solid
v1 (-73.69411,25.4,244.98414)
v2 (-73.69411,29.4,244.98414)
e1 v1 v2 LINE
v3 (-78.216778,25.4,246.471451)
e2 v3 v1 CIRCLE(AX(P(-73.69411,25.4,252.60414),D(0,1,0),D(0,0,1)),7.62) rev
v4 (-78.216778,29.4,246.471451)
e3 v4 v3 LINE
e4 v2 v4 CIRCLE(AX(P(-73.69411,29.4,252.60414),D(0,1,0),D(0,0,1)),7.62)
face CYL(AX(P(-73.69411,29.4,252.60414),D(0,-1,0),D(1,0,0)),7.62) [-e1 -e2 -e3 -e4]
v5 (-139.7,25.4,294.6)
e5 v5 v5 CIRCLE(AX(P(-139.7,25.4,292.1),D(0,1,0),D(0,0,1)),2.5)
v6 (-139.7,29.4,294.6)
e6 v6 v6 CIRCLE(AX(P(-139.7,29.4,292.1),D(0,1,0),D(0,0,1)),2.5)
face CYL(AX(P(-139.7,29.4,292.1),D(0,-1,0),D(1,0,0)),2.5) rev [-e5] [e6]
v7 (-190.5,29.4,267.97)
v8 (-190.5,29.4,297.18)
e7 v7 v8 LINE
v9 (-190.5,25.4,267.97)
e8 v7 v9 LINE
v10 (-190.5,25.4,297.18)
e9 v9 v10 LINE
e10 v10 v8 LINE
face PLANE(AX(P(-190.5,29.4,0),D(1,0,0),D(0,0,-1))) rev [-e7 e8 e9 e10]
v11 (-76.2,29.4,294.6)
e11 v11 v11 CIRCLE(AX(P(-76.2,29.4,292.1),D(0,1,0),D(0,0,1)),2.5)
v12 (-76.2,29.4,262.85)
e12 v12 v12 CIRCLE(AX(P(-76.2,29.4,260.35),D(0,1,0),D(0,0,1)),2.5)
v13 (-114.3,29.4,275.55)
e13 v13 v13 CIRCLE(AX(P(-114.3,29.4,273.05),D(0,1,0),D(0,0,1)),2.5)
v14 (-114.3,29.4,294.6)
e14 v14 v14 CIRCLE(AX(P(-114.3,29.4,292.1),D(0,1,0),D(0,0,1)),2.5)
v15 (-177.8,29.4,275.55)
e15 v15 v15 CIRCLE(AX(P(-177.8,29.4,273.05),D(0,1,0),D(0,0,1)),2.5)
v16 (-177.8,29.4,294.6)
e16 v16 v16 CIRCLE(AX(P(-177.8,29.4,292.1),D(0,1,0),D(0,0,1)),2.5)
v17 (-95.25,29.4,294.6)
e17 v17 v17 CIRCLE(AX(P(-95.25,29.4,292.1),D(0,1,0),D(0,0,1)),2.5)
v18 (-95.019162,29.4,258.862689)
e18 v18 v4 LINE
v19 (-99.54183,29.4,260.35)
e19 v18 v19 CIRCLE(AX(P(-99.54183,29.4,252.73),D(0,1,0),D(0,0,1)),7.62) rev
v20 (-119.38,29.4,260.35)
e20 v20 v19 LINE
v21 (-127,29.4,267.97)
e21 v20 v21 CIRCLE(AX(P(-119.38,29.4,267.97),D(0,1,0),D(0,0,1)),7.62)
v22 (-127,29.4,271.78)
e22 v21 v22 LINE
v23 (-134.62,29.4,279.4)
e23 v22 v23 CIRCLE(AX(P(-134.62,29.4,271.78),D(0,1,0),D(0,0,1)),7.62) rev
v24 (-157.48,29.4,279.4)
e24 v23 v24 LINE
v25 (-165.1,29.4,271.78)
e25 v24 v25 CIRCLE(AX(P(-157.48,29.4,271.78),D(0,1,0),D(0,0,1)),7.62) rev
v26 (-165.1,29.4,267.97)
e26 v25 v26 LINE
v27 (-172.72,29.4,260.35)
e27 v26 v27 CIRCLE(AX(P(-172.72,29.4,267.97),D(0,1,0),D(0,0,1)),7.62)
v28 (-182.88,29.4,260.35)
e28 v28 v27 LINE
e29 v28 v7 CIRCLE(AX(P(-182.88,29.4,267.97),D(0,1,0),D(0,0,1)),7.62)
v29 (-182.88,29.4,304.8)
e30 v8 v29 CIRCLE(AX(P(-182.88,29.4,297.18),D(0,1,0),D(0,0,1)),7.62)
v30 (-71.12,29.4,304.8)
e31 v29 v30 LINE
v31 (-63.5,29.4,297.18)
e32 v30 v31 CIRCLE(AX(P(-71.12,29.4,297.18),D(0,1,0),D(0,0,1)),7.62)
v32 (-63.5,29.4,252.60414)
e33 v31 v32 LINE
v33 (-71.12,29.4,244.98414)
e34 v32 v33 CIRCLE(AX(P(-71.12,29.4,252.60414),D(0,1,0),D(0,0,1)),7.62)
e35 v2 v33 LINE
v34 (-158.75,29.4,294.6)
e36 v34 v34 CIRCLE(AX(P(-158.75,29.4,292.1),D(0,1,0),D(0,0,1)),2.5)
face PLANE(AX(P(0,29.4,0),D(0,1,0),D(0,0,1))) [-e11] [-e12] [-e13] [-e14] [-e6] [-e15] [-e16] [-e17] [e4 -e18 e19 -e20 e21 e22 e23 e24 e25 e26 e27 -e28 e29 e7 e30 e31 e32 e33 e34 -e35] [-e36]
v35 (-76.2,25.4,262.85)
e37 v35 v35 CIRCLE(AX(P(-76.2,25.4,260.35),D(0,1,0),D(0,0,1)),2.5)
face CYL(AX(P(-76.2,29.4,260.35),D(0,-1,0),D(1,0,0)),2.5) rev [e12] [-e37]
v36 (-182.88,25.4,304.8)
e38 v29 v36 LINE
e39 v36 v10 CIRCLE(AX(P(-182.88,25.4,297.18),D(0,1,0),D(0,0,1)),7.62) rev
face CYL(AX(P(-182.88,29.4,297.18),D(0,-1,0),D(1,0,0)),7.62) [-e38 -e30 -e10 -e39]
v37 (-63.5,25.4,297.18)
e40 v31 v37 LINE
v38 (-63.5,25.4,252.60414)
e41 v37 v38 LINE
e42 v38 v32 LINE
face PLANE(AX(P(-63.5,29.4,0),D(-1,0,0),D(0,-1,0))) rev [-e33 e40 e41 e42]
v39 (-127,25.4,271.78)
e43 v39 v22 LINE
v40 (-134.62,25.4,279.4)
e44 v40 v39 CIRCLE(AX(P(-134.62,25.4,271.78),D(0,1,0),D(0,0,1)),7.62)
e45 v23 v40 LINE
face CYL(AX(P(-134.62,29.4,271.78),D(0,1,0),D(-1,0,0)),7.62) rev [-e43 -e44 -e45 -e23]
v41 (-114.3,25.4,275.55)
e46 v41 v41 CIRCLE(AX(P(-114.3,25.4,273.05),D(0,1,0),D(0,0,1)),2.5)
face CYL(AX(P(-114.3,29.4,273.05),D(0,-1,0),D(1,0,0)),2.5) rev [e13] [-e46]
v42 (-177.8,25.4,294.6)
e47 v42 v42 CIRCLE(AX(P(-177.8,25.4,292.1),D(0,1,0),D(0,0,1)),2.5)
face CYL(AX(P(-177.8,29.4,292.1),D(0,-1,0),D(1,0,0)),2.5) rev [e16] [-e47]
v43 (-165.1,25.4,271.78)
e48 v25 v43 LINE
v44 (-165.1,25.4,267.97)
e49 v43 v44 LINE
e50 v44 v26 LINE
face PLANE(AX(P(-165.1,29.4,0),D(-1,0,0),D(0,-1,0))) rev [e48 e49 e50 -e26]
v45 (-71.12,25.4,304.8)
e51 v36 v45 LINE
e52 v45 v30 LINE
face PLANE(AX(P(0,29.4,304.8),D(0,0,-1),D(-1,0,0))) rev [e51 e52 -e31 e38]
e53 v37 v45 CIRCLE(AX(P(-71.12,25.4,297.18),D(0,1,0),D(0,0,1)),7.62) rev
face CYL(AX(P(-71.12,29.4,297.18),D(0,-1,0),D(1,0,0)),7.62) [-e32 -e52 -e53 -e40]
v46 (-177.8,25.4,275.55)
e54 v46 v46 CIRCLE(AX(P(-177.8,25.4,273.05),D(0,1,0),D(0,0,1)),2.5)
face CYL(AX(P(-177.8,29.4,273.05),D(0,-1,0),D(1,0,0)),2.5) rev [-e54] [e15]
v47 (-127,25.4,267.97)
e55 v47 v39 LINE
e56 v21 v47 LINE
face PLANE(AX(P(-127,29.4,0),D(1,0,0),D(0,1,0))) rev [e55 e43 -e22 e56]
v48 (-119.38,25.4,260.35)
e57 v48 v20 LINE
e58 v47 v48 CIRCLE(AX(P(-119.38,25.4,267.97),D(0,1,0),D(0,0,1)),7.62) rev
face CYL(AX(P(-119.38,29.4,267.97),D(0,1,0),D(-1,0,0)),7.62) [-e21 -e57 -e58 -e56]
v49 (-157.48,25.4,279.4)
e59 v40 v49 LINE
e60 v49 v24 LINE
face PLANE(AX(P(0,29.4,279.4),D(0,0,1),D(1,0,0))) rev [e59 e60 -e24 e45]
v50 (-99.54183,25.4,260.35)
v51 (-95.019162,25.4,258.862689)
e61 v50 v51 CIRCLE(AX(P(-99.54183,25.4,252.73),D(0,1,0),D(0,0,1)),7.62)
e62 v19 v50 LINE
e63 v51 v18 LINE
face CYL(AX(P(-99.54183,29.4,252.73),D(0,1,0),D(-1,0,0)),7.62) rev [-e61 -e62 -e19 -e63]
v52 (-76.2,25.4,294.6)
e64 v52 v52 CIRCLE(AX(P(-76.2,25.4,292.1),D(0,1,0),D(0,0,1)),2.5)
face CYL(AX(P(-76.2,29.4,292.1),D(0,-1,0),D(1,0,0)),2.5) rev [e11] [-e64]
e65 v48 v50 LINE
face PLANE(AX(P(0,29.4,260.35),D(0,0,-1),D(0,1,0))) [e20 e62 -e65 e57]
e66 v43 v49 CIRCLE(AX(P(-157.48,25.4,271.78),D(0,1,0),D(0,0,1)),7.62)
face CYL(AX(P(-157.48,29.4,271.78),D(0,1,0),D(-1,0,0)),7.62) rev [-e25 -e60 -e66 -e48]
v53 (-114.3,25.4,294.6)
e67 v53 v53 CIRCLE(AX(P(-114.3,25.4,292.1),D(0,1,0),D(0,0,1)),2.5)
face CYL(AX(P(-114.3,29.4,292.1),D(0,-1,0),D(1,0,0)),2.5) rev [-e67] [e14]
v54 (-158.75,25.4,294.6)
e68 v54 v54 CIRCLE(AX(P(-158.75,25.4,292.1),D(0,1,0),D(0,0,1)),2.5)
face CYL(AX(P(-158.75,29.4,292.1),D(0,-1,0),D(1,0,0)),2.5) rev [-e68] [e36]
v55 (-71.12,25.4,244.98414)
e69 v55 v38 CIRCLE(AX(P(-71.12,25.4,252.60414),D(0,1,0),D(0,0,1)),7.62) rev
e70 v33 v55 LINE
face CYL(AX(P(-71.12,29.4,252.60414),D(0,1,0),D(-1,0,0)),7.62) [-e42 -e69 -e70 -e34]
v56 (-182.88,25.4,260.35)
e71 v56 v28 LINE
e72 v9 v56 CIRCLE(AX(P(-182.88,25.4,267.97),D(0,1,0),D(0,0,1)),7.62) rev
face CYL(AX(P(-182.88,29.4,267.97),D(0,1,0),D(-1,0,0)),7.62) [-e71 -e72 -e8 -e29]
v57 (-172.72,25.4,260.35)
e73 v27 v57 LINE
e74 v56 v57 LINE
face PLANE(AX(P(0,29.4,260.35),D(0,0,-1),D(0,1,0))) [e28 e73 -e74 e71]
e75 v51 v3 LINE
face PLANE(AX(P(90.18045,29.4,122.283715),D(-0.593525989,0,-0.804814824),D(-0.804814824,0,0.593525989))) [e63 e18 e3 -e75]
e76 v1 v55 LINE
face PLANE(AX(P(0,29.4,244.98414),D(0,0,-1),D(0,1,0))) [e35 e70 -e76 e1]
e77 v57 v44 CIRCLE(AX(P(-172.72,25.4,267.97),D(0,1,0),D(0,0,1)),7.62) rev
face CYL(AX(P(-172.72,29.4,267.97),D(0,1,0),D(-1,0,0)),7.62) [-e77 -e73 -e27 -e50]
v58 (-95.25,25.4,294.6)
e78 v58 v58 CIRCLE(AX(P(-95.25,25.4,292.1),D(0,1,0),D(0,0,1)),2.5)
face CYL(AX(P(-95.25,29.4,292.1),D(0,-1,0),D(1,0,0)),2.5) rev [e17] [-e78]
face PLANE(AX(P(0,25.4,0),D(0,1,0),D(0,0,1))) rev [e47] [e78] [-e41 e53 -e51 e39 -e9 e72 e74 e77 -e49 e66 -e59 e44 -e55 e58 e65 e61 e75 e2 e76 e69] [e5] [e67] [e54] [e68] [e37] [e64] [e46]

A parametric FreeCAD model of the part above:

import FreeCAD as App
import Part
import Sketcher
Q = App.Units.Quantity


def edges_at(feature, points):
    """Names of the edges that pass closest to the given points."""
    edges = feature.Shape.Edges
    near = lambda p: min(range(len(edges)), key=lambda i: edges[i].distToShape(Part.Vertex(*p))[0])
    return sorted({f"Edge{near(p) + 1}" for p in points})

doc = App.newDocument("Part")
params = doc.addObject("Spreadsheet::Sheet", "Params")
for row, (alias, value) in enumerate([
    ("sketch1_width", "1 in"),
    ("sketch1_width2", "5 in"),
    ("sketch1_width3", "1.5 in"),
    ("sketch1_width4", "0.5 in"),
    ("sketch1_height", "0.75 in"),
    ("pad1_length", "4 mm"),
    ("fillet_radius", "0.3 in"),
], start=1):
    params.set(f"A{row}", alias)
    params.set(f"B{row}", "=" + value)
    params.setAlias(f"B{row}", alias)

body = doc.addObject("PartDesign::Body", "Body")

# Sketch on XZ plane
sketch1 = body.newObject("Sketcher::SketchObject", "Sketch")
sketch1.AttachmentSupport = (doc.getObject("XZ_Plane"), [""])
sketch1.MapMode = "FlatFace"
sketch1.AttachmentOffset = App.Placement(App.Vector(0, 0, -1 * 25.4), App.Rotation())
sketch1.addGeometry([
    Part.LineSegment(App.Vector(-97.03594, 260.35, 0), App.Vector(-127, 260.35, 0)),  # 0
    Part.LineSegment(App.Vector(-127, 260.35, 0), App.Vector(-127, 279.4, 0)),  # 1
    Part.LineSegment(App.Vector(-127, 279.4, 0), App.Vector(-165.1, 279.4, 0)),  # 2
    Part.LineSegment(App.Vector(-165.1, 279.4, 0), App.Vector(-165.1, 260.35, 0)),  # 3
    Part.LineSegment(App.Vector(-165.1, 260.35, 0), App.Vector(-190.5, 260.35, 0)),  # 4
    Part.LineSegment(App.Vector(-190.5, 260.35, 0), App.Vector(-190.5, 304.8, 0)),  # 5
    Part.LineSegment(App.Vector(-190.5, 304.8, 0), App.Vector(-63.5, 304.8, 0)),  # 6
    Part.LineSegment(App.Vector(-63.5, 304.8, 0), App.Vector(-63.5, 244.98414, 0)),  # 7
    Part.LineSegment(App.Vector(-63.5, 244.98414, 0), App.Vector(-76.2, 244.98414, 0)),  # 8
    Part.LineSegment(App.Vector(-76.2, 244.98414, 0), App.Vector(-97.03594, 260.35, 0)),  # 9
    Part.Circle(App.Vector(-76.2, 292.1, 0), App.Vector(0, 0, 1), 2.5),  # 10
    Part.Circle(App.Vector(-95.25, 292.1, 0), App.Vector(0, 0, 1), 2.5),  # 11
    Part.Circle(App.Vector(-114.3, 292.1, 0), App.Vector(0, 0, 1), 2.5),  # 12
    Part.Circle(App.Vector(-139.7, 292.1, 0), App.Vector(0, 0, 1), 2.5),  # 13
    Part.Circle(App.Vector(-158.75, 292.1, 0), App.Vector(0, 0, 1), 2.5),  # 14
    Part.Circle(App.Vector(-177.8, 292.1, 0), App.Vector(0, 0, 1), 2.5),  # 15
    Part.Circle(App.Vector(-114.3, 273.05, 0), App.Vector(0, 0, 1), 2.5),  # 16
    Part.Circle(App.Vector(-76.2, 260.35, 0), App.Vector(0, 0, 1), 2.5),  # 17
    Part.Circle(App.Vector(-177.8, 273.05, 0), App.Vector(0, 0, 1), 2.5),  # 18
], False)
sketch1.addConstraint([
    Sketcher.Constraint("Coincident", 0, 2, 1, 1),
    Sketcher.Constraint("Coincident", 1, 2, 2, 1),
    Sketcher.Constraint("Coincident", 2, 2, 3, 1),
    Sketcher.Constraint("Coincident", 3, 2, 4, 1),
    Sketcher.Constraint("Coincident", 4, 2, 5, 1),
    Sketcher.Constraint("Coincident", 5, 2, 6, 1),
    Sketcher.Constraint("Coincident", 6, 2, 7, 1),
    Sketcher.Constraint("Coincident", 7, 2, 8, 1),
    Sketcher.Constraint("Coincident", 8, 2, 9, 1),
    Sketcher.Constraint("Coincident", 9, 2, 0, 1),
    Sketcher.Constraint("Horizontal", 0),
    Sketcher.Constraint("Vertical", 1),
    Sketcher.Constraint("Horizontal", 2),
    Sketcher.Constraint("Vertical", 3),
    Sketcher.Constraint("Horizontal", 4),
    Sketcher.Constraint("Vertical", 5),
    Sketcher.Constraint("Horizontal", 6),
    Sketcher.Constraint("Vertical", 7),
    Sketcher.Constraint("Horizontal", 8),
    Sketcher.Constraint("Equal", 10, 11),
    Sketcher.Constraint("Equal", 11, 12),
    Sketcher.Constraint("Equal", 12, 13),
    Sketcher.Constraint("Equal", 13, 14),
    Sketcher.Constraint("Equal", 14, 15),
    Sketcher.Constraint("Equal", 15, 16),
    Sketcher.Constraint("Equal", 16, 17),
    Sketcher.Constraint("Equal", 17, 18),
    Sketcher.Constraint("Horizontal", 10, 3, 11, 3),
    Sketcher.Constraint("Horizontal", 11, 3, 12, 3),
    Sketcher.Constraint("Horizontal", 12, 3, 13, 3),
    Sketcher.Constraint("Horizontal", 13, 3, 14, 3),
    Sketcher.Constraint("Horizontal", 14, 3, 15, 3),
    Sketcher.Constraint("Horizontal", 16, 3, 18, 3),
    Sketcher.Constraint("Horizontal", 17, 3, 0, 2),
    Sketcher.Constraint("Horizontal", 0, 2, 3, 2),
    Sketcher.Constraint("Vertical", 12, 3, 16, 3),
    Sketcher.Constraint("Vertical", 10, 3, 17, 3),
    Sketcher.Constraint("Vertical", 15, 3, 18, 3),
    Sketcher.Constraint("Vertical", 17, 3, 8, 2),
    Sketcher.Constraint("DistanceX", 4, 2, 4, 1, Q("1 in")),
    Sketcher.Constraint("DistanceX", 6, 1, 6, 2, Q("5 in")),
    Sketcher.Constraint("DistanceX", 2, 2, 2, 1, Q("1.5 in")),
    Sketcher.Constraint("DistanceX", 8, 2, 8, 1, Q("0.5 in")),
    Sketcher.Constraint("DistanceX", 10, 3, -1, 1, Q("3 in")),
    Sketcher.Constraint("DistanceX", 15, 3, -1, 1, Q("7 in")),
    Sketcher.Constraint("DistanceY", -1, 1, 1, 2, Q("11 in")),
    Sketcher.Constraint("DistanceY", -1, 1, 5, 2, Q("12 in")),
    Sketcher.Constraint("DistanceX", 13, 3, 12, 3, Q("1 in")),
    Sketcher.Constraint("DistanceX", 2, 2, 13, 3, Q("1 in")),
    Sketcher.Constraint("DistanceY", 1, 1, 1, 2, Q("0.75 in")),
    Sketcher.Constraint("DistanceY", -1, 1, 10, 3, Q("11.5 in")),
    Sketcher.Constraint("DistanceX", 14, 3, 11, 3, Q("2.5 in")),
    Sketcher.Constraint("DistanceY", 17, 3, 16, 3, Q("0.5 in")),
    Sketcher.Constraint("Diameter", 10, Q("5 mm")),
    Sketcher.Constraint("DistanceX", 11, 3, -1, 1, Q("3.75 in")),
    Sketcher.Constraint("DistanceX", 0, 2, 0, 1, Q("29.96406 mm")),
    Sketcher.Constraint("DistanceY", 7, 2, 7, 1, Q("59.81586 mm")),
])
sketch1.setExpression("Constraints[39]", "Params.sketch1_width")
sketch1.setExpression("Constraints[40]", "Params.sketch1_width2")
sketch1.setExpression("Constraints[41]", "Params.sketch1_width3")
sketch1.setExpression("Constraints[42]", "Params.sketch1_width4")
sketch1.setExpression("Constraints[49]", "Params.sketch1_height")
pad1 = body.newObject("PartDesign::Pad", "Pad")
pad1.Profile = sketch1
pad1.setExpression("Length", "Params.pad1_length")
pad1.Reversed = True
doc.recompute()

fillet = body.newObject("PartDesign::Fillet", "Fillet")
fillet.Base = (pad1, edges_at(pad1, [
    (-190.5, 27.4, 304.8),
    (-190.5, 27.4, 260.35),
    (-165.1, 27.4, 260.35),
    (-165.1, 27.4, 279.4),
    (-127, 27.4, 279.4),
    (-127, 27.4, 260.35),
    (-97.036, 27.4, 260.35),
    (-76.2, 27.4, 244.984),
    (-63.5, 27.4, 244.984),
    (-63.5, 27.4, 304.8),
]))
fillet.setExpression("Radius", "Params.fillet_radius")

doc.recompute()
